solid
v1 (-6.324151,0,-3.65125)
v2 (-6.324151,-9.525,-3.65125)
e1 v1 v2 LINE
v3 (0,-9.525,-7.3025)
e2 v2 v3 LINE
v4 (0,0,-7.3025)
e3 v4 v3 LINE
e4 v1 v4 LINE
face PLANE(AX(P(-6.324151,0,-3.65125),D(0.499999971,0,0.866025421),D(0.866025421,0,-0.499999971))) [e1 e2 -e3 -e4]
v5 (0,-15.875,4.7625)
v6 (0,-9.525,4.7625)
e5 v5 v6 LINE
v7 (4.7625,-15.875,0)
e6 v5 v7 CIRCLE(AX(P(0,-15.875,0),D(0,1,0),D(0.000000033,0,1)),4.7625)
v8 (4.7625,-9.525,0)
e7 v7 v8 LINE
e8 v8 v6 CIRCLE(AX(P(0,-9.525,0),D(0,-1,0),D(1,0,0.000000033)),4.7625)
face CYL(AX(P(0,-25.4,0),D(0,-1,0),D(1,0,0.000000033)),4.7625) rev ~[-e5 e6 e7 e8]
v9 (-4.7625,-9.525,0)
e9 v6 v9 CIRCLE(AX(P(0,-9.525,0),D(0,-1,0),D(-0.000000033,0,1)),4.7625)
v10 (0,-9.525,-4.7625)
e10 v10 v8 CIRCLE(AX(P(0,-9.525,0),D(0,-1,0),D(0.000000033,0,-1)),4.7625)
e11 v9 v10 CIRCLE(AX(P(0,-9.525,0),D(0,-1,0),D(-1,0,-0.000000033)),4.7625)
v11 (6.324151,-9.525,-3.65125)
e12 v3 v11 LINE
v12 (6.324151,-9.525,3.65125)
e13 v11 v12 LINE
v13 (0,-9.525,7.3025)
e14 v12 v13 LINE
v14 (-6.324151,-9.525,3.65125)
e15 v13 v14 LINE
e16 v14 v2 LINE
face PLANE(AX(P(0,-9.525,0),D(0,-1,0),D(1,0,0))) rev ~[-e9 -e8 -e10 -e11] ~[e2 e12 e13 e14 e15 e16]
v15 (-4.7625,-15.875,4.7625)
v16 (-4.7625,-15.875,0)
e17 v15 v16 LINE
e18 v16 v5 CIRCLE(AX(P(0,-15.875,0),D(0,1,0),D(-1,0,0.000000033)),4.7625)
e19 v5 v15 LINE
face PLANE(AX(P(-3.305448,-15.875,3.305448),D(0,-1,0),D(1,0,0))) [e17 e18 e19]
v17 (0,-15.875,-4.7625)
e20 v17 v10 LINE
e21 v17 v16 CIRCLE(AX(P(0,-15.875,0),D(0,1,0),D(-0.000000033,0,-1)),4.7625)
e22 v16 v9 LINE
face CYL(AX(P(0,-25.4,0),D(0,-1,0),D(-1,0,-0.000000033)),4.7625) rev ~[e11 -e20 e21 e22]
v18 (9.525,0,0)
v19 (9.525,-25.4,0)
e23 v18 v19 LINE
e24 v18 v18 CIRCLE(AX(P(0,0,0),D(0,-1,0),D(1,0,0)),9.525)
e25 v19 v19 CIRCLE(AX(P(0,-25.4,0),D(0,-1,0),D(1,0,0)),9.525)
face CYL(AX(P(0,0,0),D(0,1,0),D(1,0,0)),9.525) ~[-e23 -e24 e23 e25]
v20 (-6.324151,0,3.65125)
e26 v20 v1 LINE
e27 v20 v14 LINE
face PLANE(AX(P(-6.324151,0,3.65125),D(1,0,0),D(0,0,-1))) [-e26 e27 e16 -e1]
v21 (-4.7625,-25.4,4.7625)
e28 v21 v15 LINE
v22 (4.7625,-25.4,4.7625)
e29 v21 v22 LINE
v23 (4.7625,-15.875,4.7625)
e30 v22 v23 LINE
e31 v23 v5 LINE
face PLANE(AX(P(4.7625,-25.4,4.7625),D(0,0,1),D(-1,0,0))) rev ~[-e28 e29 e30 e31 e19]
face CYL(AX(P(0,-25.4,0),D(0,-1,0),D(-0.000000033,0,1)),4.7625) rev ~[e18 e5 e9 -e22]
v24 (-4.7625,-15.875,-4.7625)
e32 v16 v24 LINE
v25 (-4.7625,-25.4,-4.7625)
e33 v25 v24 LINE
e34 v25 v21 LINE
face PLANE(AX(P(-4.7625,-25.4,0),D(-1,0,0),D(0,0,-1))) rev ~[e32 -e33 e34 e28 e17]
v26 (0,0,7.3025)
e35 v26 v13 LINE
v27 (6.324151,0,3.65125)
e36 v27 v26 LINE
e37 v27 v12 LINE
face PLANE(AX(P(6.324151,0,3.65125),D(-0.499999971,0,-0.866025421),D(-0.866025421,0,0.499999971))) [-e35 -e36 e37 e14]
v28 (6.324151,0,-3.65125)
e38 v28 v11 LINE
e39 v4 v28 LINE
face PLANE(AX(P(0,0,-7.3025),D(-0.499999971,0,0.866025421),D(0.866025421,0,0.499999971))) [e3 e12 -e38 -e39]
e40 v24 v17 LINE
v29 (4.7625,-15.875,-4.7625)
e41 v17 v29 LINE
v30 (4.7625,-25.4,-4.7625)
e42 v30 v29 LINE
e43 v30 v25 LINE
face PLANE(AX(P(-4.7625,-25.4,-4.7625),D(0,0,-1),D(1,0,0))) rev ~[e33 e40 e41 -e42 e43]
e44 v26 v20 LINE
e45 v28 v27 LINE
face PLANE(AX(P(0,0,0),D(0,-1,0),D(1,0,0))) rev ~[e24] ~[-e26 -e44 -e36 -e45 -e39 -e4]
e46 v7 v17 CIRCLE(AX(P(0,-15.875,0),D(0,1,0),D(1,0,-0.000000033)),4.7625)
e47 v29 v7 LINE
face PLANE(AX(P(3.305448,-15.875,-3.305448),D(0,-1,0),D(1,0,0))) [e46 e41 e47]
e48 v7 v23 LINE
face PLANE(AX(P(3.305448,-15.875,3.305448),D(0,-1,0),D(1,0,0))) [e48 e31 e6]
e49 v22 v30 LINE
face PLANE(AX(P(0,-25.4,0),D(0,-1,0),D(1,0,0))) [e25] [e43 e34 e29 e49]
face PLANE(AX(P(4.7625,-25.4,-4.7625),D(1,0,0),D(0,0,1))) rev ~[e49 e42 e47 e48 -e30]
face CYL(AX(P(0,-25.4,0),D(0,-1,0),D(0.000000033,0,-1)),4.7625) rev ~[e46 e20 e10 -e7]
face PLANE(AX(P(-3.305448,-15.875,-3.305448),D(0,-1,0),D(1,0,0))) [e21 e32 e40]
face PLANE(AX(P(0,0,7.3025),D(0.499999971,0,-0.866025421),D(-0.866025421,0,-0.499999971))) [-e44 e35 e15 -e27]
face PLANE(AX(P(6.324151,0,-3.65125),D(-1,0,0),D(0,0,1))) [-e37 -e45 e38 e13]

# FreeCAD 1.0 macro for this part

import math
import FreeCAD as App
import Part
import Sketcher
from FreeCAD import Vector
Q = App.Units.Quantity

doc = App.newDocument("Part")
params = doc.addObject("Spreadsheet::Sheet", "Params")
for row, (alias, value) in enumerate([
    ("sketch1_diameter", "0.75 in"),
    ("pad1_length", "1 in"),
    ("sketch2_radius", "0.1875 in"),
    ("sketch3_radius", "0.1875 in"),
    ("pocket2_length", "0.375 in"),
    ("pocket3_length", "0.375 in"),
], start=1):
    params.set(f"A{row}", alias)
    params.set(f"B{row}", "=" + value)
    params.setAlias(f"B{row}", alias)

body = doc.addObject("PartDesign::Body", "Body")

# Sketch on XZ plane
sketch1 = body.newObject("Sketcher::SketchObject", "Sketch")
sketch1.AttachmentSupport = (doc.getObject("XZ_Plane"), [""])
sketch1.MapMode = "FlatFace"
sketch1.addGeometry(Part.Circle(Vector(0, 0, 0), Vector(0, 0, 1), 9.525), False)
sketch1.addConstraint([
    Sketcher.Constraint("Coincident", 0, 3, -1, 1),
    Sketcher.Constraint("Diameter", 0, Q("0.75 in")),
])
sketch1.setExpression("Constraints[1]", "Params.sketch1_diameter")
pad1 = body.newObject("PartDesign::Pad", "Pad")
pad1.Profile = sketch1
pad1.setExpression("Length", "Params.pad1_length")

# Sketch on XZ plane
sketch2 = body.newObject("Sketcher::SketchObject", "Sketch001")
sketch2.AttachmentSupport = (doc.getObject("XZ_Plane"), [""])
sketch2.MapMode = "FlatFace"
sketch2.AttachmentOffset = App.Placement(Vector(0, 0, 1 * 25.4), App.Rotation())
sketch2.addGeometry([
    Part.ArcOfCircle(Part.Circle(Vector(0, 0, 0), Vector(0, 0, 1), 4.7625), math.radians(-179.999998), math.radians(-90.000002)),
    Part.ArcOfCircle(Part.Circle(Vector(0, 0, 0), Vector(0, 0, 1), 4.7625), math.radians(-89.999998), math.radians(-0.000002)),
    Part.ArcOfCircle(Part.Circle(Vector(0, 0, 0), Vector(0, 0, 1), 4.7625), math.radians(0.000002), math.radians(89.999998)),
    Part.ArcOfCircle(Part.Circle(Vector(0, 0, 0), Vector(0, 0, 1), 4.7625), math.radians(90.000002), math.radians(179.999998)),
], False)
sketch2.addConstraint([
    Sketcher.Constraint("Tangent", 0, 2, 1, 1),
    Sketcher.Constraint("Tangent", 1, 2, 2, 1),
    Sketcher.Constraint("Tangent", 2, 2, 3, 1),
    Sketcher.Constraint("Tangent", 3, 2, 0, 1),
    Sketcher.Constraint("Coincident", 0, 3, -1, 1),
    Sketcher.Constraint("Equal", 0, 1),
    Sketcher.Constraint("PointOnObject", 0, 2, -2),
    Sketcher.Constraint("PointOnObject", 1, 2, -1),
    Sketcher.Constraint("PointOnObject", 2, 2, -2),
    Sketcher.Constraint("PointOnObject", 3, 2, -1),
    Sketcher.Constraint("Radius", 0, Q("0.1875 in")),
])
sketch2.setExpression("Constraints[10]", "Params.sketch2_radius")
pocket1 = body.newObject("PartDesign::Pocket", "Pocket")
pocket1.Profile = sketch2
pocket1.Type = "ThroughAll"

# Sketch on XZ plane
sketch3 = body.newObject("Sketcher::SketchObject", "Sketch002")
sketch3.AttachmentSupport = (doc.getObject("XZ_Plane"), [""])
sketch3.MapMode = "FlatFace"
sketch3.AttachmentOffset = App.Placement(Vector(0, 0, 1 * 25.4), App.Rotation())
sketch3.addGeometry([
    Part.LineSegment(Vector(0, -4.7625, 0), Vector(4.7625, -4.7625, 0)),  # 0
    Part.LineSegment(Vector(4.7625, -4.7625, 0), Vector(4.7625, 0, 0)),  # 1
    Part.ArcOfCircle(Part.Circle(Vector(0, 0, 0), Vector(0, 0, 1), 4.7625), math.radians(-89.999998), math.radians(-0.000002)),  # 2
    Part.LineSegment(Vector(-4.7625, -4.7625, 0), Vector(0, -4.7625, 0)),  # 3
    Part.ArcOfCircle(Part.Circle(Vector(0, 0, 0), Vector(0, 0, 1), 4.7625), math.radians(-179.999998), math.radians(-90.000002)),  # 4
    Part.LineSegment(Vector(-4.7625, 0, 0), Vector(-4.7625, -4.7625, 0)),  # 5
    Part.ArcOfCircle(Part.Circle(Vector(0, 0, 0), Vector(0, 0, 1), 4.7625), math.radians(0.000002), math.radians(89.999998)),  # 6
    Part.LineSegment(Vector(4.7625, 0, 0), Vector(4.7625, 4.7625, 0)),  # 7
    Part.LineSegment(Vector(4.7625, 4.7625, 0), Vector(0, 4.7625, 0)),  # 8
    Part.LineSegment(Vector(-4.7625, 4.7625, 0), Vector(-4.7625, 0, 0)),  # 9
    Part.ArcOfCircle(Part.Circle(Vector(0, 0, 0), Vector(0, 0, 1), 4.7625), math.radians(90.000002), math.radians(179.999998)),  # 10
    Part.LineSegment(Vector(0, 4.7625, 0), Vector(-4.7625, 4.7625, 0)),  # 11
], False)
sketch3.addConstraint([
    Sketcher.Constraint("Coincident", 0, 2, 1, 1),
    Sketcher.Constraint("Tangent", 1, 2, 2, 2),
    Sketcher.Constraint("Tangent", 2, 1, 0, 1),
    Sketcher.Constraint("Tangent", 3, 2, 4, 2),
    Sketcher.Constraint("Tangent", 4, 1, 5, 1),
    Sketcher.Constraint("Coincident", 5, 2, 3, 1),
    Sketcher.Constraint("Tangent", 6, 1, 7, 1),
    Sketcher.Constraint("Coincident", 7, 2, 8, 1),
    Sketcher.Constraint("Tangent", 8, 2, 6, 2),
    Sketcher.Constraint("Tangent", 9, 2, 10, 2),
    Sketcher.Constraint("Tangent", 10, 1, 11, 1),
    Sketcher.Constraint("Coincident", 11, 2, 9, 1),
    Sketcher.Constraint("Horizontal", 0),
    Sketcher.Constraint("Vertical", 1),
    Sketcher.Constraint("Horizontal", 3),
    Sketcher.Constraint("Vertical", 5),
    Sketcher.Constraint("Vertical", 7),
    Sketcher.Constraint("Horizontal", 8),
    Sketcher.Constraint("Vertical", 9),
    Sketcher.Constraint("Horizontal", 11),
    Sketcher.Constraint("Coincident", 2, 3, -1, 1),
    Sketcher.Constraint("Coincident", 4, 3, -1, 1),
    Sketcher.Constraint("Coincident", 6, 3, -1, 1),
    Sketcher.Constraint("Coincident", 10, 3, -1, 1),
    Sketcher.Constraint("Equal", 2, 4),
    Sketcher.Constraint("Equal", 4, 6),
    Sketcher.Constraint("Equal", 6, 10),
    Sketcher.Constraint("Radius", 2, Q("0.1875 in")),
])
sketch3.setExpression("Constraints[27]", "Params.sketch3_radius")
pocket2 = body.newObject("PartDesign::Pocket", "Pocket001")
pocket2.Profile = sketch3
pocket2.setExpression("Length", "Params.pocket2_length")

# Sketch on XZ plane
sketch4 = body.newObject("Sketcher::SketchObject", "Sketch003")
sketch4.AttachmentSupport = (doc.getObject("XZ_Plane"), [""])
sketch4.MapMode = "FlatFace"
sketch4.addGeometry([
    Part.LineSegment(Vector(6.324151, 3.65125, 0), Vector(0, 7.3025, 0)),  # 0
    Part.LineSegment(Vector(0, 7.3025, 0), Vector(-6.324151, 3.65125, 0)),  # 1
    Part.LineSegment(Vector(-6.324151, 3.65125, 0), Vector(-6.324151, -3.65125, 0)),  # 2
    Part.LineSegment(Vector(-6.324151, -3.65125, 0), Vector(0, -7.3025, 0)),  # 3
    Part.LineSegment(Vector(0, -7.3025, 0), Vector(6.324151, -3.65125, 0)),  # 4
    Part.LineSegment(Vector(6.324151, -3.65125, 0), Vector(6.324151, 3.65125, 0)),  # 5
], False)
sketch4.addConstraint([
    Sketcher.Constraint("Coincident", 0, 2, 1, 1),
    Sketcher.Constraint("Coincident", 1, 2, 2, 1),
    Sketcher.Constraint("Coincident", 2, 2, 3, 1),
    Sketcher.Constraint("Coincident", 3, 2, 4, 1),
    Sketcher.Constraint("Coincident", 4, 2, 5, 1),
    Sketcher.Constraint("Coincident", 5, 2, 0, 1),
    Sketcher.Constraint("Vertical", 2),
    Sketcher.Constraint("Vertical", 5),
    Sketcher.Constraint("Symmetric", 0, 2, 3, 2, -1, 1),
    Sketcher.Constraint("Symmetric", 1, 2, 4, 2, -1, 1),
    Sketcher.Constraint("PointOnObject", 0, 2, -2),
    Sketcher.Constraint("Parallel", 0, 3),
    Sketcher.Constraint("Horizontal", 2, 2, 4, 2),
    Sketcher.Constraint("Angle", 0, Q("150.000002 deg")),
    Sketcher.Constraint("DistanceY", 2, 2, 2, 1, Q("0.2875 in")),
    Sketcher.Constraint("DistanceY", 3, 2, 0, 2, Q("0.575 in")),
])
pocket3 = body.newObject("PartDesign::Pocket", "Pocket002")
pocket3.Profile = sketch4
pocket3.setExpression("Length", "Params.pocket3_length")
pocket3.Reversed = True

doc.recompute()
